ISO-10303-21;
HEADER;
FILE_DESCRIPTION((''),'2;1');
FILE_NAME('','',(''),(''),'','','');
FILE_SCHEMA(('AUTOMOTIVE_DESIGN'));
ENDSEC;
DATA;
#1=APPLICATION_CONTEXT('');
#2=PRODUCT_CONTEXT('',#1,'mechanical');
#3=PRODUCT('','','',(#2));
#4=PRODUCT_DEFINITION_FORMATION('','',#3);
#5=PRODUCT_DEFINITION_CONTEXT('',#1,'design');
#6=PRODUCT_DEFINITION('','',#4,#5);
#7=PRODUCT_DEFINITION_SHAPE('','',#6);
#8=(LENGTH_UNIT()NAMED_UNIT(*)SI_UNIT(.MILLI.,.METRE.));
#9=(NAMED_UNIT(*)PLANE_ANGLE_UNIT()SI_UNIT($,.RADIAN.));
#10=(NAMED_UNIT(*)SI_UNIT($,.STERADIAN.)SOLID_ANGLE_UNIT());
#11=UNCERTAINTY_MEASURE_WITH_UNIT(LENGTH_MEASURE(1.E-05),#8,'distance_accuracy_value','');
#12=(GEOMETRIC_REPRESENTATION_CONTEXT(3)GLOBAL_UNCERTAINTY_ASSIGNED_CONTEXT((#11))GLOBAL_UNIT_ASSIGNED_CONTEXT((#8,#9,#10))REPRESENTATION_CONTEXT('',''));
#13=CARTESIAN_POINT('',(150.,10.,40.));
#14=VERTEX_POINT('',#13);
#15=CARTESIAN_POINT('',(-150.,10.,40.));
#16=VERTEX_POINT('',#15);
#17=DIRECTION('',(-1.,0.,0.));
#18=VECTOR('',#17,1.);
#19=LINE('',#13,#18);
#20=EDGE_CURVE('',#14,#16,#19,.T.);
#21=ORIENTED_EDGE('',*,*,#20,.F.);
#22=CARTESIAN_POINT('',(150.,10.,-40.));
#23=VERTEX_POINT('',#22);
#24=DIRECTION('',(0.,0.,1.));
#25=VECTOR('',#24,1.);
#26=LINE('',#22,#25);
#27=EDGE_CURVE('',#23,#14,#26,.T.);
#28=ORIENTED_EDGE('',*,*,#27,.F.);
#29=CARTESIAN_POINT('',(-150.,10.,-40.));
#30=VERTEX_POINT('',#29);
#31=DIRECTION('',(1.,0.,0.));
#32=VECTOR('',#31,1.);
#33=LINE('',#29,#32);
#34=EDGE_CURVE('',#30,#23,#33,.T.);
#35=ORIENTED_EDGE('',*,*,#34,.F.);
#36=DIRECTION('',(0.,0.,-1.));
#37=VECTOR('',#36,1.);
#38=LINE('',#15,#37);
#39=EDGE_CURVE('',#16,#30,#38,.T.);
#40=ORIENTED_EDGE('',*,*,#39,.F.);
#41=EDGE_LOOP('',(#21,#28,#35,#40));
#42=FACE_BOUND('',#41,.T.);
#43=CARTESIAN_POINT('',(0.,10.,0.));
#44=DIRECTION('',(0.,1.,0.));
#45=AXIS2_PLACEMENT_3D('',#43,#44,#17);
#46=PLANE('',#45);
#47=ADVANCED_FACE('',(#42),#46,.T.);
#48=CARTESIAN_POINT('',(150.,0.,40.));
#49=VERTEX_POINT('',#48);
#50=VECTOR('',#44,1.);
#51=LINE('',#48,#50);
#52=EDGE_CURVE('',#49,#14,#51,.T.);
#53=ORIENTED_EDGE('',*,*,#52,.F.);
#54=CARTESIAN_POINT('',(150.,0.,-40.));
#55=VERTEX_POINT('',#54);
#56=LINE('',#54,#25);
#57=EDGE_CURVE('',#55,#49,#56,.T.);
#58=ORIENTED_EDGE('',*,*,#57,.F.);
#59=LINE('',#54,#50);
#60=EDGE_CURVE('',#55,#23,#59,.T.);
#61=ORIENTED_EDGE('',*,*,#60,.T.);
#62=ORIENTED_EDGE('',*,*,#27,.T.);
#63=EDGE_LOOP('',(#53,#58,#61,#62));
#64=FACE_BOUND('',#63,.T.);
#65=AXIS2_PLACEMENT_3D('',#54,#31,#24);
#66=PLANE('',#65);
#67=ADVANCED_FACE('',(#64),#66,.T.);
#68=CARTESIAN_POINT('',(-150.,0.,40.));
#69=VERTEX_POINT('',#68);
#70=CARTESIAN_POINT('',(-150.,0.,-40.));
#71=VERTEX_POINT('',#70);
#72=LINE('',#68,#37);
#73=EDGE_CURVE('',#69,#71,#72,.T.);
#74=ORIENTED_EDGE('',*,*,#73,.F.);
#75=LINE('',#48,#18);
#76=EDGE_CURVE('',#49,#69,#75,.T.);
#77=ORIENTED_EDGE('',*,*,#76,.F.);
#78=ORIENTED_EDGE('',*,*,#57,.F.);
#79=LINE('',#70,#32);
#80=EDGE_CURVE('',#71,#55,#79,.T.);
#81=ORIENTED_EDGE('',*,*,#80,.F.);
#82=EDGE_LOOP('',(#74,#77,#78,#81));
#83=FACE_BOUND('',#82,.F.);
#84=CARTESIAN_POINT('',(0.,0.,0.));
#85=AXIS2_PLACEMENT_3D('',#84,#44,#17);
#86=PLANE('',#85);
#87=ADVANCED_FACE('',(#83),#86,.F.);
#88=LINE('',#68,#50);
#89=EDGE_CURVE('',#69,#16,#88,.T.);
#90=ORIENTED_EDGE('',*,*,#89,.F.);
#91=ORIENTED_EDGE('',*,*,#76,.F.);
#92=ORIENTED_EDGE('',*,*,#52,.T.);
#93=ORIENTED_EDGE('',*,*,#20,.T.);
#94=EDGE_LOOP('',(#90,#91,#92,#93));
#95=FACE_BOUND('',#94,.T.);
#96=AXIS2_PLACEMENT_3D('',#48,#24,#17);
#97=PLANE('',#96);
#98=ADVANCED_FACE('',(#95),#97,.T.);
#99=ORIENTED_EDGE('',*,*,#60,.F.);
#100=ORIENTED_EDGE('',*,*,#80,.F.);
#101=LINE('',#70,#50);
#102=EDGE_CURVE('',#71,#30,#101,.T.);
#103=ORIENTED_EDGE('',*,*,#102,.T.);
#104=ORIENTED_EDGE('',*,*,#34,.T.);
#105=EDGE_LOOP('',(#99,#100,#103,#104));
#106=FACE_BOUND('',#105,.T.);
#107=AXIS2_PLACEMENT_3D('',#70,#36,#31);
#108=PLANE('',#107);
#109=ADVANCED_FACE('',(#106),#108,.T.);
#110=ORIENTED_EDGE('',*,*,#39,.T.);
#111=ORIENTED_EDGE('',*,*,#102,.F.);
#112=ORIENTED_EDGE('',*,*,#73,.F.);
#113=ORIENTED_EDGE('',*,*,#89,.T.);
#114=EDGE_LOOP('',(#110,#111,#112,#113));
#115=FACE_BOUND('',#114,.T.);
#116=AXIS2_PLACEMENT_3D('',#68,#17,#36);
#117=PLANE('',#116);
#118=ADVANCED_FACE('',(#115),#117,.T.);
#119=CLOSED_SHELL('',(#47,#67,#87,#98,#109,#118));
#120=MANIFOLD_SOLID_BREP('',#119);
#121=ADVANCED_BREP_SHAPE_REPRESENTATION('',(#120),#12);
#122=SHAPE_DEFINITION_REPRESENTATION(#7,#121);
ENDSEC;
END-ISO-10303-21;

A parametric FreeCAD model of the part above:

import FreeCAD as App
import Part
import Sketcher

V = App.Vector
Q = App.Units.Quantity

doc = App.newDocument("Part")
body = doc.addObject("PartDesign::Body", "Body")

# Sketch on XZ plane
sketch1 = doc.addObject("Sketcher::SketchObject", "Sketch")
body.addObject(sketch1)
sketch1.AttachmentSupport = (doc.XZ_Plane, [""])
sketch1.MapMode = "FlatFace"
sketch1.addGeometry([
    Part.LineSegment(V(150, -40, 0), V(-150, -40, 0)),
    Part.LineSegment(V(-150, -40, 0), V(-150, 40, 0)),
    Part.LineSegment(V(-150, 40, 0), V(150, 40, 0)),
    Part.LineSegment(V(150, 40, 0), V(150, -40, 0)),
], False)
sketch1.addConstraint([
    Sketcher.Constraint("Coincident", 0, 2, 1, 1),
    Sketcher.Constraint("Coincident", 1, 2, 2, 1),
    Sketcher.Constraint("Coincident", 2, 2, 3, 1),
    Sketcher.Constraint("Coincident", 3, 2, 0, 1),
    Sketcher.Constraint("Horizontal", 0),
    Sketcher.Constraint("Vertical", 1),
    Sketcher.Constraint("Horizontal", 2),
    Sketcher.Constraint("Vertical", 3),
    Sketcher.Constraint("Symmetric", 0, 2, 2, 2, -1, 1),
    Sketcher.Constraint("DistanceX", 0, 2, 0, 1, Q("300 mm")),
    Sketcher.Constraint("DistanceY", 1, 1, 1, 2, Q("80 mm")),
])
pad1 = doc.addObject("PartDesign::Pad", "Pad")
body.addObject(pad1)
pad1.Profile = sketch1
pad1.Length = 10
pad1.Reversed = True

doc.recompute()
